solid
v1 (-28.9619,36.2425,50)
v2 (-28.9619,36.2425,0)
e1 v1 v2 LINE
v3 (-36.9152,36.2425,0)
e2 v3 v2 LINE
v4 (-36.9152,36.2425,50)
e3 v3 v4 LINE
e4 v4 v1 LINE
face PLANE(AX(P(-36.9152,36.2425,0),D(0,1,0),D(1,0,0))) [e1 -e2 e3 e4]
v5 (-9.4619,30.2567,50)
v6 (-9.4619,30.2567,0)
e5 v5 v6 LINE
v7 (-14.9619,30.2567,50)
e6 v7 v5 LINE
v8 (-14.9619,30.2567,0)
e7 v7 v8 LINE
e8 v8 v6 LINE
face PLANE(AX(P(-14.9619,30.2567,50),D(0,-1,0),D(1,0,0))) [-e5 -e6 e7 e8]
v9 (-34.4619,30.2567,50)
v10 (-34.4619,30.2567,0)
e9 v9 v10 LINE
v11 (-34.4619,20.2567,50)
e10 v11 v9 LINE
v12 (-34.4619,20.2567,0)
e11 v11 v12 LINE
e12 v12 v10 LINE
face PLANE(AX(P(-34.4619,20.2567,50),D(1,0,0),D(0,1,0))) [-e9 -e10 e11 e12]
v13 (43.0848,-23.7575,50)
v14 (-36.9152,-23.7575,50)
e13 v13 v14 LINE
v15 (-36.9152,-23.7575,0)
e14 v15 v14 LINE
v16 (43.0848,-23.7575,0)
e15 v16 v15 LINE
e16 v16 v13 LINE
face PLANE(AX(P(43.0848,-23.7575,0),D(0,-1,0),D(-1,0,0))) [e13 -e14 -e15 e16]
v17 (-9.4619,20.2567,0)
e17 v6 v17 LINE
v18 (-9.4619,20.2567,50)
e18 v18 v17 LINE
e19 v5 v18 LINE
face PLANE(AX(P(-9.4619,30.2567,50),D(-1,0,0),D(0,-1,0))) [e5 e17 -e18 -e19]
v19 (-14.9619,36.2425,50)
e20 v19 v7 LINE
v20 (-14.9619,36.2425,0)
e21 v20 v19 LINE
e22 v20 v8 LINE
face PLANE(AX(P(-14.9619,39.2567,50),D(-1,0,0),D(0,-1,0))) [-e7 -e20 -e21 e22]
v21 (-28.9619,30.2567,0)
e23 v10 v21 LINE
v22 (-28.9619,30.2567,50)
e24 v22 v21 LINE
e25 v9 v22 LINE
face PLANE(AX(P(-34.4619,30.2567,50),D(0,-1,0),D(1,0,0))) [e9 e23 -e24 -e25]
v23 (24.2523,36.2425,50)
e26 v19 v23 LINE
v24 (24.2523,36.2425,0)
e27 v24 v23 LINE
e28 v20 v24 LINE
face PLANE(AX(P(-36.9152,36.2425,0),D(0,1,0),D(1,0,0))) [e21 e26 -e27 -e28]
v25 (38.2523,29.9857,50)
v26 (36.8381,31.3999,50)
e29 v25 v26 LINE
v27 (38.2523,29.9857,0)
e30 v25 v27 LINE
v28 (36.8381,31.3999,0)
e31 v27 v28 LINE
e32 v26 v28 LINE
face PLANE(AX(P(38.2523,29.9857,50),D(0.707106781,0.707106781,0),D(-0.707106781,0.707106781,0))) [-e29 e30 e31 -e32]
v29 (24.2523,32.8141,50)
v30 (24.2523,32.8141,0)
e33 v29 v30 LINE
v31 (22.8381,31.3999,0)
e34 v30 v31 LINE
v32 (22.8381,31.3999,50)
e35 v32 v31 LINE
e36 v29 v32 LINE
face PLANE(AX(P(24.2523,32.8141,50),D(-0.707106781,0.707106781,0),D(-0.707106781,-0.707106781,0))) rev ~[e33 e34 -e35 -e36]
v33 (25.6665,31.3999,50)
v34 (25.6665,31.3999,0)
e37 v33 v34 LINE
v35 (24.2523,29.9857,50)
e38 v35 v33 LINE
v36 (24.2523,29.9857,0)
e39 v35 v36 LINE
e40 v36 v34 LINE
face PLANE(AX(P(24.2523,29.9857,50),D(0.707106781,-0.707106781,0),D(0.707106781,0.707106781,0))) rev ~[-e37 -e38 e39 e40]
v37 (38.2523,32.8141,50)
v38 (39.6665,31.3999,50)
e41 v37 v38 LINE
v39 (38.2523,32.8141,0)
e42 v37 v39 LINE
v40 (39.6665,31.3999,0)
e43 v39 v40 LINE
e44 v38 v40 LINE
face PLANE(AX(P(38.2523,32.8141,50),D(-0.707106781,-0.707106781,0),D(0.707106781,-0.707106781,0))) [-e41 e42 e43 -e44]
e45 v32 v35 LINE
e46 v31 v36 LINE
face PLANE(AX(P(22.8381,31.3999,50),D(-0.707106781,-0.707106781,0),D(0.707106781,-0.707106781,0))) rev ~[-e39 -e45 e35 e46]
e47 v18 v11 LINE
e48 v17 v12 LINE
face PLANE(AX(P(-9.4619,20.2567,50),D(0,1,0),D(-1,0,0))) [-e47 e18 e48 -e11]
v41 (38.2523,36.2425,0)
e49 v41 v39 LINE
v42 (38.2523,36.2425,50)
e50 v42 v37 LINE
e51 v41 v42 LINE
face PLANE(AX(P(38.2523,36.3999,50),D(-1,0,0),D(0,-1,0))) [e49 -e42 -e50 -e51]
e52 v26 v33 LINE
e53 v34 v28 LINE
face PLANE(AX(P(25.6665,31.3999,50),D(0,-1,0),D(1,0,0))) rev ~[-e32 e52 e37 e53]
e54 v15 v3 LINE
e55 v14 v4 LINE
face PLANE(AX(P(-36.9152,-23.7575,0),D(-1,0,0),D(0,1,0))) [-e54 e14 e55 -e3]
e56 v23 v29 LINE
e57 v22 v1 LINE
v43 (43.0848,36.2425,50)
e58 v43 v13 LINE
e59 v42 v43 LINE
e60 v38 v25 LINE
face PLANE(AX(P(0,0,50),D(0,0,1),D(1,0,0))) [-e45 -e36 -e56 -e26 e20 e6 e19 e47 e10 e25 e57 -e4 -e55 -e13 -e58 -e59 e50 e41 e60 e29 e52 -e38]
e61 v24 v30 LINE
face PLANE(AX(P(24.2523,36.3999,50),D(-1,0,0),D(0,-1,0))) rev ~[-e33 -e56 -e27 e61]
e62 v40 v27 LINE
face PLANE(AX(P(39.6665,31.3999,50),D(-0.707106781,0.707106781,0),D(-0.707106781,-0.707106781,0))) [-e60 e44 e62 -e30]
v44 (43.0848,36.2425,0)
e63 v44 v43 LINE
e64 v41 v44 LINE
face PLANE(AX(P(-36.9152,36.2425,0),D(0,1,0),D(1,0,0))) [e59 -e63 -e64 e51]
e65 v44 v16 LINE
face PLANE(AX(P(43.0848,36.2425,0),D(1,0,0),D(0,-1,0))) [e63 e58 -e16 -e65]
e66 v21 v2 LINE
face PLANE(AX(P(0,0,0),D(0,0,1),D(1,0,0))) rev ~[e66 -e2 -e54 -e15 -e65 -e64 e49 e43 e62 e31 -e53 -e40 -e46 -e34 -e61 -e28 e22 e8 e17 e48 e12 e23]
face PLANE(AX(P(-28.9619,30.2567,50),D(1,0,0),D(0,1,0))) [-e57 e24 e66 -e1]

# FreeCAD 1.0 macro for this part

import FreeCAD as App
import Part
import Sketcher
from FreeCAD import Vector
Q = App.Units.Quantity


def add_polygon(sketch, points):
    """Adds a closed chain of lines whose ends are joined by coincident constraints."""
    first, n = sketch.GeometryCount, len(points)
    for a, b in zip(points, points[1:] + points[:1]):
        sketch.addGeometry(Part.LineSegment(App.Vector(*a, 0), App.Vector(*b, 0)), False)
    for i in range(n):
        sketch.addConstraint(Sketcher.Constraint("Coincident", first + i, 2, first + (i + 1) % n, 1))

doc = App.newDocument("Part")
body = doc.addObject("PartDesign::Body", "Body")

# Sketch on XY plane
sketch1 = body.newObject("Sketcher::SketchObject", "Sketch")
sketch1.AttachmentSupport = (doc.getObject("XY_Plane"), [""])
sketch1.MapMode = "FlatFace"
add_polygon(sketch1, [(43.0848, 36.2425), (-36.9152, 36.2425), (-36.9152, -23.7575), (43.0848, -23.7575)])  # lines 0-3
sketch1.addConstraint([
    Sketcher.Constraint("Horizontal", 0),
    Sketcher.Constraint("Vertical", 1),
    Sketcher.Constraint("Horizontal", 2),
    Sketcher.Constraint("Vertical", 3),
    Sketcher.Constraint("DistanceX", 0, 2, 0, 1, Q("80 mm")),
    Sketcher.Constraint("DistanceY", 1, 2, 1, 1, Q("60 mm")),
    Sketcher.Constraint("DistanceX", 0, 2, -1, 1, Q("36.9152 mm")),
    Sketcher.Constraint("DistanceY", -1, 1, 0, 2, Q("36.2425 mm")),
])
pad1 = body.newObject("PartDesign::Pad", "Pad")
pad1.Profile = sketch1
pad1.Length = 50

# Sketch on XY plane
sketch2 = body.newObject("Sketcher::SketchObject", "Sketch001")
sketch2.AttachmentSupport = (doc.getObject("XY_Plane"), [""])
sketch2.MapMode = "FlatFace"
sketch2.AttachmentOffset = App.Placement(Vector(0, 0, 50), App.Rotation())
add_polygon(sketch2, [(-34.4619, 30.2567), (-34.4619, 20.2567), (-9.4619, 20.2567), (-9.4619, 30.2567), (-14.9619, 30.2567), (-14.9619, 39.2567), (-28.9619, 39.2567), (-28.9619, 30.2567)])  # lines 0-7
sketch2.addConstraint([
    Sketcher.Constraint("Vertical", 0),
    Sketcher.Constraint("Horizontal", 1),
    Sketcher.Constraint("Vertical", 2),
    Sketcher.Constraint("Horizontal", 3),
    Sketcher.Constraint("Vertical", 4),
    Sketcher.Constraint("Horizontal", 5),
    Sketcher.Constraint("Vertical", 6),
    Sketcher.Constraint("Horizontal", 7),
    Sketcher.Constraint("Horizontal", 3, 2, 6, 2),
    Sketcher.Constraint("Equal", 3, 7),
    Sketcher.Constraint("DistanceX", 1, 1, 1, 2, Q("25 mm")),
    Sketcher.Constraint("DistanceX", 5, 2, 5, 1, Q("14 mm")),
    Sketcher.Constraint("DistanceY", 0, 2, 0, 1, Q("10 mm")),
    Sketcher.Constraint("DistanceY", 4, 1, 4, 2, Q("9 mm")),
    Sketcher.Constraint("DistanceX", 0, 2, -1, 1, Q("34.462 mm")),
    Sketcher.Constraint("DistanceY", -1, 1, 0, 2, Q("20.2567 mm")),
])
pocket1 = body.newObject("PartDesign::Pocket", "Pocket")
pocket1.Profile = sketch2
pocket1.Length = 50

# Sketch on XY plane
sketch3 = body.newObject("Sketcher::SketchObject", "Sketch002")
sketch3.AttachmentSupport = (doc.getObject("XY_Plane"), [""])
sketch3.MapMode = "FlatFace"
sketch3.AttachmentOffset = App.Placement(Vector(0, 0, 50), App.Rotation())
add_polygon(sketch3, [(38.2523, 36.3999), (24.2523, 36.3999), (24.2523, 32.8141), (22.8381, 31.3999), (24.2523, 29.9857), (25.6665, 31.3999), (36.8381, 31.3999), (38.2523, 29.9857), (39.6665, 31.3999), (38.2523, 32.8141)])  # lines 0-9
sketch3.addConstraint([
    Sketcher.Constraint("Horizontal", 0),
    Sketcher.Constraint("Vertical", 1),
    Sketcher.Constraint("Horizontal", 5),
    Sketcher.Constraint("Vertical", 9),
    Sketcher.Constraint("Perpendicular", 2, 3),
    Sketcher.Constraint("Perpendicular", 3, 4),
    Sketcher.Constraint("Perpendicular", 4, 6),
    Sketcher.Constraint("Perpendicular", 6, 7),
    Sketcher.Constraint("Perpendicular", 7, 8),
    Sketcher.Constraint("Horizontal", 2, 2, 4, 2),
    Sketcher.Constraint("Horizontal", 3, 2, 6, 2),
    Sketcher.Constraint("Horizontal", 5, 2, 7, 2),
    Sketcher.Constraint("Horizontal", 1, 2, 8, 2),
    Sketcher.Constraint("Vertical", 1, 2, 3, 2),
    Sketcher.Constraint("Vertical", 6, 2, 8, 2),
    Sketcher.Constraint("Distance", 2, Q("2 mm")),
    Sketcher.Constraint("DistanceY", 2, 2, 0, 2, Q("5 mm")),
    Sketcher.Constraint("DistanceX", 0, 2, 0, 1, Q("14 mm")),
    Sketcher.Constraint("DistanceY", -1, 1, 0, 2, Q("36.4 mm")),
    Sketcher.Constraint("DistanceX", -1, 1, 2, 2, Q("22.838 mm")),
])
pocket2 = body.newObject("PartDesign::Pocket", "Pocket001")
pocket2.Profile = sketch3
pocket2.Length = 50

doc.recompute()
